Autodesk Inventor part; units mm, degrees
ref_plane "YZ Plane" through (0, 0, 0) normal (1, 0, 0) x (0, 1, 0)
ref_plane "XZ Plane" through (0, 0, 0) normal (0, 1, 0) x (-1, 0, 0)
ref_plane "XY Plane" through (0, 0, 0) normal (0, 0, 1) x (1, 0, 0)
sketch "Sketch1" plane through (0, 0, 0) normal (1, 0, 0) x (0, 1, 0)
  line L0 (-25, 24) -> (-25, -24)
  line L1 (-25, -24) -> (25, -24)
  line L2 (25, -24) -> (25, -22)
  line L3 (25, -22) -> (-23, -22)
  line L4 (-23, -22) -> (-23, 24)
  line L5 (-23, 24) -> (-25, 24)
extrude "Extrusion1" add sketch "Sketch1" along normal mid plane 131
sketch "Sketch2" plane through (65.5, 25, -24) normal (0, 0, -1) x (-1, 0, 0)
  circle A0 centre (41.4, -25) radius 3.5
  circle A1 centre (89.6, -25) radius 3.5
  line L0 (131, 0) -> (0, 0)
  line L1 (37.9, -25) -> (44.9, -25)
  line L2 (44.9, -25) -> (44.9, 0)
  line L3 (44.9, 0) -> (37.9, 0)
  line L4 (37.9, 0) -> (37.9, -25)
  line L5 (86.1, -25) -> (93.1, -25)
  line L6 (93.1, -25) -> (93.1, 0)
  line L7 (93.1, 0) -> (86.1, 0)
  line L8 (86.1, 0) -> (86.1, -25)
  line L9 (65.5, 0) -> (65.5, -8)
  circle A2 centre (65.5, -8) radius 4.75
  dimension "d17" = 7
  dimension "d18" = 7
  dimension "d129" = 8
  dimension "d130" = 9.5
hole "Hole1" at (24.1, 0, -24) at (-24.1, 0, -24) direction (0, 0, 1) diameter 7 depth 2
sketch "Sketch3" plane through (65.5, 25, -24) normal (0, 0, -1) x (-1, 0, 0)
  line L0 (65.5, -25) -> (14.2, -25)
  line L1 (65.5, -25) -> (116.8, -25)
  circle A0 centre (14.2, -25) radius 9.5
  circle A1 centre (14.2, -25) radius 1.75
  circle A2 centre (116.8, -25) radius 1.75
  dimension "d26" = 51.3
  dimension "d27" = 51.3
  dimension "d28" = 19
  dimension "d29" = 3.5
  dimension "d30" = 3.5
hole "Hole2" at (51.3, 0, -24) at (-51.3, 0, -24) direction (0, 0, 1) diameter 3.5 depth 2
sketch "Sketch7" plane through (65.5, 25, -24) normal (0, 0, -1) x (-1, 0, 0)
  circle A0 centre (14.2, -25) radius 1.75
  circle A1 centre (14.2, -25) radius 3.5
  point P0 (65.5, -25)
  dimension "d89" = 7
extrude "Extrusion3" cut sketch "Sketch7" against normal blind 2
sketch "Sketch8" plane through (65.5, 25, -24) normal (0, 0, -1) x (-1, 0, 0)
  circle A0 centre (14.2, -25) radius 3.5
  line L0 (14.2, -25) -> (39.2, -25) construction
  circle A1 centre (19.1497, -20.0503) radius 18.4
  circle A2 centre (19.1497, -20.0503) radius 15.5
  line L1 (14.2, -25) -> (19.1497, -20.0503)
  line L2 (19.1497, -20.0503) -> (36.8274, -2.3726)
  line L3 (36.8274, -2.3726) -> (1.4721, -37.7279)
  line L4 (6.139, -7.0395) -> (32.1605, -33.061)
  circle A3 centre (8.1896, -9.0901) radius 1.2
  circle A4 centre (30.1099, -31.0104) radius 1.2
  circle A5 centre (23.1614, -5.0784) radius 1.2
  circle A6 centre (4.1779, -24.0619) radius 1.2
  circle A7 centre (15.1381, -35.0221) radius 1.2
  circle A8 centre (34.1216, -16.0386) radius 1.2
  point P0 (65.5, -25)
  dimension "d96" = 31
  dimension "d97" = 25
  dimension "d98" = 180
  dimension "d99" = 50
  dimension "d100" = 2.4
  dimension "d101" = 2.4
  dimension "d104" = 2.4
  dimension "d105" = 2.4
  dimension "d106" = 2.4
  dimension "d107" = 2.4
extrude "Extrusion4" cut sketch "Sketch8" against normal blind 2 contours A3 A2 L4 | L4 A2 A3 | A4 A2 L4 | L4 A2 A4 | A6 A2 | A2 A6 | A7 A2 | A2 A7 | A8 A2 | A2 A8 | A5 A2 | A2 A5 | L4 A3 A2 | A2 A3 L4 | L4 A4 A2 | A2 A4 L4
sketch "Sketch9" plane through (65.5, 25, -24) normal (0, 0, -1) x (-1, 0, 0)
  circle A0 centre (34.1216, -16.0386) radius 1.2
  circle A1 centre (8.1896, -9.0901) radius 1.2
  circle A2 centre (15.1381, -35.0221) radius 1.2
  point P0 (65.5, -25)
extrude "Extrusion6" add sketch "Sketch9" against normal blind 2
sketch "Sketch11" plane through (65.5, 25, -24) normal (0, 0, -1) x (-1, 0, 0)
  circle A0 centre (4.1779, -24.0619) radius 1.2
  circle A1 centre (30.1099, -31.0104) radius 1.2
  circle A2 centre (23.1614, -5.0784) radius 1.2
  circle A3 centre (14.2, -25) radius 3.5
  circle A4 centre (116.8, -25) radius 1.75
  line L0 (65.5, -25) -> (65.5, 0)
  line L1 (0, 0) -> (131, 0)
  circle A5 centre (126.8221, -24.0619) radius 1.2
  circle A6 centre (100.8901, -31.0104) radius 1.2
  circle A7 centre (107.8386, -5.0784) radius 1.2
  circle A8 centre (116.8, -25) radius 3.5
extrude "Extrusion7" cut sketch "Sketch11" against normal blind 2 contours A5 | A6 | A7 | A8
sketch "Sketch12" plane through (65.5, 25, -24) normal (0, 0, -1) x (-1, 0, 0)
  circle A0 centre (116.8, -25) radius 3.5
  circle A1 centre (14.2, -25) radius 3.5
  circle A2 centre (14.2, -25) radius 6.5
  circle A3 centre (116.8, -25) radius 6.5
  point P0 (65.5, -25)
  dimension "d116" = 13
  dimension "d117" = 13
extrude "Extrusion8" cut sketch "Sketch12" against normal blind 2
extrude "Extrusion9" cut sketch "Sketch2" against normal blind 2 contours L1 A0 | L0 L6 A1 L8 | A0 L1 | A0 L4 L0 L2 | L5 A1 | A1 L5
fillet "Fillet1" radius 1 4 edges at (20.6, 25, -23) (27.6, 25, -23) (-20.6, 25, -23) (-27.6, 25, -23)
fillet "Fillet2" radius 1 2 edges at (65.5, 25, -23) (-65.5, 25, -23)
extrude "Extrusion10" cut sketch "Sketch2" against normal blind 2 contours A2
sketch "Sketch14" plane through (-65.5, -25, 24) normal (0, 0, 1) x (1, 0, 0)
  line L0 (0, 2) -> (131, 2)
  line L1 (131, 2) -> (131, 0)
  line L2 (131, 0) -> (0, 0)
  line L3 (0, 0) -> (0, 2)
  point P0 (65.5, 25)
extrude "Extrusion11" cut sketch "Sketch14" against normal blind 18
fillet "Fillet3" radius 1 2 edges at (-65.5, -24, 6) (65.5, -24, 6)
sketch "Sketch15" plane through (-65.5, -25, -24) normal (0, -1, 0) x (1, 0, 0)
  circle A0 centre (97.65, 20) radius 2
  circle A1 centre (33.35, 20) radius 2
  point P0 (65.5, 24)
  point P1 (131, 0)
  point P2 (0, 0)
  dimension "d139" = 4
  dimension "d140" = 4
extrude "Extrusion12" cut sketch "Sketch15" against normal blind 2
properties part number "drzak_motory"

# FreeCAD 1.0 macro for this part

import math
import FreeCAD as App
import Part
import Sketcher
from FreeCAD import Vector


def edges_at(feature, points):
    """Names of the edges that pass closest to the given points."""
    edges = feature.Shape.Edges
    near = lambda p: min(range(len(edges)), key=lambda i: edges[i].distToShape(Part.Vertex(*p))[0])
    return sorted({f"Edge{near(p) + 1}" for p in points})

doc = App.newDocument("Part")
params = doc.addObject("Spreadsheet::Sheet", "Params")
for row, (alias, value) in enumerate([
    ("sketch1_width", "2 mm"),
    ("sketch1_width2", "50 mm"),
    ("pad1_length", "131 mm"),
    ("sketch2_diameter", "7 mm"),
    ("hole_diameter", "7 mm"),
    ("hole_depth", "2 mm"),
    ("sketch3_diameter", "3.5 mm"),
    ("hole2_diameter", "3.5 mm"),
    ("hole2_depth", "2 mm"),
    ("sketch4_diameter", "7 mm"),
    ("sketch4_diameter2", "3.5 mm"),
    ("pocket1_length", "2 mm"),
    ("sketch5_diameter", "2.4 mm"),
    ("pocket2_length", "2 mm"),
    ("sketch6_diameter", "2.4 mm"),
    ("pad2_length", "2 mm"),
    ("sketch7_diameter", "7 mm"),
    ("sketch7_diameter2", "2.4 mm"),
    ("sketch7_diameter3", "3.5 mm"),
    ("pocket3_length", "2 mm"),
    ("sketch8_diameter", "13 mm"),
    ("sketch8_diameter2", "7 mm"),
    ("pocket4_length", "2 mm"),
    ("sketch9_radius", "3.5 mm"),
    ("sketch9_height", "25 mm"),
    ("pocket5_length", "2 mm"),
    ("fillet_radius", "1 mm"),
    ("fillet2_radius", "1 mm"),
    ("sketch10_diameter", "9.5 mm"),
    ("pocket6_length", "2 mm"),
    ("sketch11_width", "131 mm"),
    ("sketch11_height", "2 mm"),
    ("pocket7_length", "18 mm"),
    ("fillet3_radius", "1 mm"),
    ("sketch12_diameter", "4 mm"),
    ("pocket8_length", "2 mm"),
], start=1):
    params.set(f"A{row}", alias)
    params.set(f"B{row}", "=" + value)
    params.setAlias(f"B{row}", alias)

body = doc.addObject("PartDesign::Body", "Body")

# Sketch on YZ plane
sketch1 = body.newObject("Sketcher::SketchObject", "Sketch")
sketch1.AttachmentSupport = (doc.getObject("YZ_Plane"), [""])
sketch1.MapMode = "FlatFace"
sketch1.addGeometry(Part.LineSegment(Vector(-23, 24, 0), Vector(-25, 24, 0)), False)
sketch1.addGeometry(Part.LineSegment(Vector(-25, 24, 0), Vector(-25, -24, 0)), False)
sketch1.addGeometry(Part.LineSegment(Vector(-25, -24, 0), Vector(25, -24, 0)), False)
sketch1.addGeometry(Part.LineSegment(Vector(25, -24, 0), Vector(25, -22, 0)), False)
sketch1.addGeometry(Part.LineSegment(Vector(25, -22, 0), Vector(-23, -22, 0)), False)
sketch1.addGeometry(Part.LineSegment(Vector(-23, -22, 0), Vector(-23, 24, 0)), False)
sketch1.addConstraint(Sketcher.Constraint("Coincident", 0, 2, 1, 1))
sketch1.addConstraint(Sketcher.Constraint("Coincident", 1, 2, 2, 1))
sketch1.addConstraint(Sketcher.Constraint("Coincident", 2, 2, 3, 1))
sketch1.addConstraint(Sketcher.Constraint("Coincident", 3, 2, 4, 1))
sketch1.addConstraint(Sketcher.Constraint("Coincident", 4, 2, 5, 1))
sketch1.addConstraint(Sketcher.Constraint("Coincident", 5, 2, 0, 1))
sketch1.addConstraint(Sketcher.Constraint("Horizontal", 0))
sketch1.addConstraint(Sketcher.Constraint("Vertical", 1))
sketch1.addConstraint(Sketcher.Constraint("Horizontal", 2))
sketch1.addConstraint(Sketcher.Constraint("Vertical", 3))
sketch1.addConstraint(Sketcher.Constraint("Horizontal", 4))
sketch1.addConstraint(Sketcher.Constraint("Vertical", 5))
sketch1.addConstraint(Sketcher.Constraint("Symmetric", 0, 2, 2, 2, -1, 1))
sketch1.addConstraint(Sketcher.Constraint("Equal", 4, 1))
sketch1.addConstraint(Sketcher.Constraint("Equal", 0, 3))
sketch1.addConstraint(Sketcher.Constraint("DistanceX", 0, 2, 0, 1, 2.0))
sketch1.addConstraint(Sketcher.Constraint("DistanceX", 2, 1, 2, 2, 50.0))
sketch1.setExpression("Constraints[15]", "Params.sketch1_width")
sketch1.setExpression("Constraints[16]", "Params.sketch1_width2")
pad1 = body.newObject("PartDesign::Pad", "Pad")
pad1.Profile = sketch1
pad1.setExpression("Length", "Params.pad1_length")
pad1.Midplane = True

# Sketch on XY plane
sketch2 = body.newObject("Sketcher::SketchObject", "Sketch001")
sketch2.AttachmentSupport = (doc.getObject("XY_Plane"), [""])
sketch2.MapMode = "FlatFace"
sketch2.AttachmentOffset = App.Placement(Vector(0, 0, -24), App.Rotation())
sketch2.addGeometry(Part.Circle(Vector(24.1, 0, 0), Vector(0, 0, 1), 3.5), False)
sketch2.addGeometry(Part.Circle(Vector(-24.1, 0, 0), Vector(0, 0, 1), 3.5), False)
sketch2.addConstraint(Sketcher.Constraint("Equal", 0, 1))
sketch2.addConstraint(Sketcher.Constraint("Symmetric", 0, 3, 1, 3, -1, 1))
sketch2.addConstraint(Sketcher.Constraint("PointOnObject", 0, 3, -1))
sketch2.addConstraint(Sketcher.Constraint("Diameter", 0, 7.0))
sketch2.addConstraint(Sketcher.Constraint("DistanceX", -1, 1, 0, 3, 24.1))
sketch2.setExpression("Constraints[3]", "Params.sketch2_diameter")
doc.recompute()
hole = body.newObject("PartDesign::Hole", "Hole")
hole.Profile = sketch2
hole.ThreadType = "None"
hole.setExpression("Diameter", "Params.hole_diameter")
hole.DepthType = "Dimension"
hole.setExpression("Depth", "Params.hole_depth")
hole.DrillPoint = "Flat"
hole.Reversed = True

# Sketch on XY plane
sketch3 = body.newObject("Sketcher::SketchObject", "Sketch002")
sketch3.AttachmentSupport = (doc.getObject("XY_Plane"), [""])
sketch3.MapMode = "FlatFace"
sketch3.AttachmentOffset = App.Placement(Vector(0, 0, -24), App.Rotation())
sketch3.addGeometry(Part.Circle(Vector(51.3, 0, 0), Vector(0, 0, 1), 1.8), False)
sketch3.addGeometry(Part.Circle(Vector(-51.3, 0, 0), Vector(0, 0, 1), 1.8), False)
sketch3.addConstraint(Sketcher.Constraint("Equal", 0, 1))
sketch3.addConstraint(Sketcher.Constraint("Symmetric", 0, 3, 1, 3, -1, 1))
sketch3.addConstraint(Sketcher.Constraint("PointOnObject", 0, 3, -1))
sketch3.addConstraint(Sketcher.Constraint("Diameter", 0, 3.5))
sketch3.addConstraint(Sketcher.Constraint("DistanceX", -1, 1, 0, 3, 51.3))
sketch3.setExpression("Constraints[3]", "Params.sketch3_diameter")
doc.recompute()
hole2 = body.newObject("PartDesign::Hole", "Hole001")
hole2.Profile = sketch3
hole2.ThreadType = "None"
hole2.setExpression("Diameter", "Params.hole2_diameter")
hole2.DepthType = "Dimension"
hole2.setExpression("Depth", "Params.hole2_depth")
hole2.DrillPoint = "Flat"
hole2.Reversed = True

# Sketch on XY plane
sketch4 = body.newObject("Sketcher::SketchObject", "Sketch003")
sketch4.AttachmentSupport = (doc.getObject("XY_Plane"), [""])
sketch4.MapMode = "FlatFace"
sketch4.AttachmentOffset = App.Placement(Vector(0, 0, -24), App.Rotation())
sketch4.addGeometry(Part.Circle(Vector(51.3, 0, 0), Vector(0, 0, 1), 3.5), False)
sketch4.addGeometry(Part.Circle(Vector(51.3, 0, 0), Vector(0, 0, 1), 1.8), False)
sketch4.addConstraint(Sketcher.Constraint("Coincident", 1, 3, 0, 3))
sketch4.addConstraint(Sketcher.Constraint("PointOnObject", 0, 3, -1))
sketch4.addConstraint(Sketcher.Constraint("Diameter", 0, 7.0))
sketch4.addConstraint(Sketcher.Constraint("Diameter", 1, 3.5))
sketch4.addConstraint(Sketcher.Constraint("DistanceX", -1, 1, 0, 3, 51.3))
sketch4.setExpression("Constraints[2]", "Params.sketch4_diameter")
sketch4.setExpression("Constraints[3]", "Params.sketch4_diameter2")
pocket1 = body.newObject("PartDesign::Pocket", "Pocket")
pocket1.Profile = sketch4
pocket1.setExpression("Length", "Params.pocket1_length")
pocket1.Reversed = True

# Sketch on XY plane
sketch5 = body.newObject("Sketcher::SketchObject", "Sketch004")
sketch5.AttachmentSupport = (doc.getObject("XY_Plane"), [""])
sketch5.MapMode = "FlatFace"
sketch5.AttachmentOffset = App.Placement(Vector(0, 0, -24), App.Rotation())
sketch5.addGeometry(Part.Circle(Vector(57.3, 15.9, 0), Vector(0, 0, 1), 1.2), False)
sketch5.addGeometry(Part.Circle(Vector(35.4, -6, 0), Vector(0, 0, 1), 1.2), False)
sketch5.addGeometry(Part.Circle(Vector(61.3, 0.9, 0), Vector(0, 0, 1), 1.2), False)
sketch5.addGeometry(Part.Circle(Vector(50.4, -10, 0), Vector(0, 0, 1), 1.2), False)
sketch5.addGeometry(Part.Circle(Vector(31.4, 9, 0), Vector(0, 0, 1), 1.2), False)
sketch5.addGeometry(Part.Circle(Vector(42.3, 19.9, 0), Vector(0, 0, 1), 1.2), False)
sketch5.addConstraint(Sketcher.Constraint("Equal", 0, 1))
sketch5.addConstraint(Sketcher.Constraint("Equal", 1, 2))
sketch5.addConstraint(Sketcher.Constraint("Equal", 2, 3))
sketch5.addConstraint(Sketcher.Constraint("Equal", 3, 4))
sketch5.addConstraint(Sketcher.Constraint("Equal", 4, 5))
sketch5.addConstraint(Sketcher.Constraint("Diameter", 0, 2.4))
sketch5.addConstraint(Sketcher.Constraint("DistanceY", -1, 1, 0, 3, 15.91))
sketch5.addConstraint(Sketcher.Constraint("DistanceX", -1, 1, 1, 3, 35.39))
sketch5.addConstraint(Sketcher.Constraint("DistanceX", -1, 1, 2, 3, 61.322))
sketch5.addConstraint(Sketcher.Constraint("DistanceY", -1, 1, 2, 3, 0.938))
sketch5.addConstraint(Sketcher.Constraint("DistanceX", -1, 1, 3, 3, 50.362))
sketch5.addConstraint(Sketcher.Constraint("DistanceY", 3, 3, -1, 1, 10.022))
sketch5.addConstraint(Sketcher.Constraint("DistanceX", 4, 3, 0, 3, 25.932))
sketch5.addConstraint(Sketcher.Constraint("DistanceY", 1, 3, 5, 3, 25.932))
sketch5.addConstraint(Sketcher.Constraint("DistanceX", -1, 1, 0, 3, 57.3104))
sketch5.addConstraint(Sketcher.Constraint("DistanceY", 1, 3, -1, 1, 6.0104))
sketch5.addConstraint(Sketcher.Constraint("DistanceY", -1, 1, 4, 3, 8.9614))
sketch5.addConstraint(Sketcher.Constraint("DistanceX", -1, 1, 5, 3, 42.3386))
sketch5.setExpression("Constraints[5]", "Params.sketch5_diameter")
pocket2 = body.newObject("PartDesign::Pocket", "Pocket001")
pocket2.Profile = sketch5
pocket2.setExpression("Length", "Params.pocket2_length")
pocket2.Reversed = True

# Sketch on XY plane
sketch6 = body.newObject("Sketcher::SketchObject", "Sketch005")
sketch6.AttachmentSupport = (doc.getObject("XY_Plane"), [""])
sketch6.MapMode = "FlatFace"
sketch6.AttachmentOffset = App.Placement(Vector(0, 0, -24), App.Rotation())
sketch6.addGeometry(Part.Circle(Vector(31.4, 9, 0), Vector(0, 0, 1), 1.2), False)
sketch6.addGeometry(Part.Circle(Vector(57.3, 15.9, 0), Vector(0, 0, 1), 1.2), False)
sketch6.addGeometry(Part.Circle(Vector(50.4, -10, 0), Vector(0, 0, 1), 1.2), False)
sketch6.addConstraint(Sketcher.Constraint("Equal", 0, 1))
sketch6.addConstraint(Sketcher.Constraint("Equal", 1, 2))
sketch6.addConstraint(Sketcher.Constraint("Diameter", 0, 2.4))
sketch6.addConstraint(Sketcher.Constraint("DistanceY", -1, 1, 1, 3, 15.91))
sketch6.addConstraint(Sketcher.Constraint("DistanceX", -1, 1, 2, 3, 50.362))
sketch6.addConstraint(Sketcher.Constraint("DistanceY", 2, 3, -1, 1, 10.022))
sketch6.addConstraint(Sketcher.Constraint("DistanceX", 0, 3, 1, 3, 25.932))
sketch6.addConstraint(Sketcher.Constraint("DistanceX", -1, 1, 0, 3, 31.3784))
sketch6.addConstraint(Sketcher.Constraint("DistanceY", -1, 1, 0, 3, 8.9614))
sketch6.setExpression("Constraints[2]", "Params.sketch6_diameter")
pad2 = body.newObject("PartDesign::Pad", "Pad001")
pad2.Profile = sketch6
pad2.setExpression("Length", "Params.pad2_length")

# Sketch on XY plane
sketch7 = body.newObject("Sketcher::SketchObject", "Sketch006")
sketch7.AttachmentSupport = (doc.getObject("XY_Plane"), [""])
sketch7.MapMode = "FlatFace"
sketch7.AttachmentOffset = App.Placement(Vector(0, 0, -24), App.Rotation())
sketch7.addGeometry(Part.Circle(Vector(-61.3, 0.9, 0), Vector(0, 0, 1), 1.2), False)
sketch7.addGeometry(Part.Circle(Vector(-35.4, -6, 0), Vector(0, 0, 1), 1.2), False)
sketch7.addGeometry(Part.Circle(Vector(-42.3, 19.9, 0), Vector(0, 0, 1), 1.2), False)
sketch7.addGeometry(Part.Circle(Vector(-51.3, 0, 0), Vector(0, 0, 1), 3.5), False)
sketch7.addGeometry(Part.Circle(Vector(-51.3, 0, 0), Vector(0, 0, 1), 1.8), False)
sketch7.addConstraint(Sketcher.Constraint("Coincident", 4, 3, 3, 3))
sketch7.addConstraint(Sketcher.Constraint("Equal", 0, 1))
sketch7.addConstraint(Sketcher.Constraint("Equal", 1, 2))
sketch7.addConstraint(Sketcher.Constraint("PointOnObject", 3, 3, -1))
sketch7.addConstraint(Sketcher.Constraint("Diameter", 3, 7.0))
sketch7.addConstraint(Sketcher.Constraint("Diameter", 0, 2.4))
sketch7.addConstraint(Sketcher.Constraint("Diameter", 4, 3.5))
sketch7.addConstraint(Sketcher.Constraint("DistanceX", 3, 3, -1, 1, 51.3))
sketch7.addConstraint(Sketcher.Constraint("DistanceX", 1, 3, -1, 1, 35.39))
sketch7.addConstraint(Sketcher.Constraint("DistanceX", 0, 3, -1, 1, 61.322))
sketch7.addConstraint(Sketcher.Constraint("DistanceY", -1, 1, 0, 3, 0.938))
sketch7.addConstraint(Sketcher.Constraint("DistanceY", 1, 3, 2, 3, 25.932))
sketch7.addConstraint(Sketcher.Constraint("DistanceY", 1, 3, -1, 1, 6.0104))
sketch7.addConstraint(Sketcher.Constraint("DistanceX", 2, 3, -1, 1, 42.3386))
sketch7.setExpression("Constraints[4]", "Params.sketch7_diameter")
sketch7.setExpression("Constraints[5]", "Params.sketch7_diameter2")
sketch7.setExpression("Constraints[6]", "Params.sketch7_diameter3")
pocket3 = body.newObject("PartDesign::Pocket", "Pocket002")
pocket3.Profile = sketch7
pocket3.setExpression("Length", "Params.pocket3_length")
pocket3.Reversed = True

# Sketch on XY plane
sketch8 = body.newObject("Sketcher::SketchObject", "Sketch007")
sketch8.AttachmentSupport = (doc.getObject("XY_Plane"), [""])
sketch8.MapMode = "FlatFace"
sketch8.AttachmentOffset = App.Placement(Vector(0, 0, -24), App.Rotation())
sketch8.addGeometry(Part.Circle(Vector(51.3, 0, 0), Vector(0, 0, 1), 6.5), False)
sketch8.addGeometry(Part.Circle(Vector(51.3, 0, 0), Vector(0, 0, 1), 3.5), False)
sketch8.addGeometry(Part.Circle(Vector(-51.3, 0, 0), Vector(0, 0, 1), 6.5), False)
sketch8.addGeometry(Part.Circle(Vector(-51.3, 0, 0), Vector(0, 0, 1), 3.5), False)
sketch8.addConstraint(Sketcher.Constraint("Coincident", 1, 3, 0, 3))
sketch8.addConstraint(Sketcher.Constraint("Coincident", 3, 3, 2, 3))
sketch8.addConstraint(Sketcher.Constraint("Equal", 0, 2))
sketch8.addConstraint(Sketcher.Constraint("Equal", 1, 3))
sketch8.addConstraint(Sketcher.Constraint("Symmetric", 0, 3, 2, 3, -1, 1))
sketch8.addConstraint(Sketcher.Constraint("PointOnObject", 0, 3, -1))
sketch8.addConstraint(Sketcher.Constraint("Diameter", 0, 13.0))
sketch8.addConstraint(Sketcher.Constraint("Diameter", 1, 7.0))
sketch8.addConstraint(Sketcher.Constraint("DistanceX", -1, 1, 0, 3, 51.3))
sketch8.setExpression("Constraints[6]", "Params.sketch8_diameter")
sketch8.setExpression("Constraints[7]", "Params.sketch8_diameter2")
pocket4 = body.newObject("PartDesign::Pocket", "Pocket003")
pocket4.Profile = sketch8
pocket4.setExpression("Length", "Params.pocket4_length")
pocket4.Reversed = True

# Sketch on XY plane
sketch9 = body.newObject("Sketcher::SketchObject", "Sketch008")
sketch9.AttachmentSupport = (doc.getObject("XY_Plane"), [""])
sketch9.MapMode = "FlatFace"
sketch9.AttachmentOffset = App.Placement(Vector(0, 0, -24), App.Rotation())
sketch9.addGeometry(Part.ArcOfCircle(Part.Circle(Vector(24.1, 0, 0), Vector(0, 0, 1), 3.5), math.radians(180), math.radians(360)), False)
sketch9.addGeometry(Part.LineSegment(Vector(20.6, 0, 0), Vector(20.6, 25, 0)), False)
sketch9.addGeometry(Part.LineSegment(Vector(20.6, 25, 0), Vector(27.6, 25, 0)), False)
sketch9.addGeometry(Part.LineSegment(Vector(27.6, 25, 0), Vector(27.6, 0, 0)), False)
sketch9.addGeometry(Part.LineSegment(Vector(-27.6, 25, 0), Vector(-20.6, 25, 0)), False)
sketch9.addGeometry(Part.LineSegment(Vector(-20.6, 25, 0), Vector(-20.6, 0, 0)), False)
sketch9.addGeometry(Part.ArcOfCircle(Part.Circle(Vector(-24.1, 0, 0), Vector(0, 0, 1), 3.5), math.radians(180), math.radians(360)), False)
sketch9.addGeometry(Part.LineSegment(Vector(-27.6, 0, 0), Vector(-27.6, 25, 0)), False)
sketch9.addConstraint(Sketcher.Constraint("Tangent", 0, 1, 1, 1))
sketch9.addConstraint(Sketcher.Constraint("Coincident", 1, 2, 2, 1))
sketch9.addConstraint(Sketcher.Constraint("Coincident", 2, 2, 3, 1))
sketch9.addConstraint(Sketcher.Constraint("Tangent", 3, 2, 0, 2))
sketch9.addConstraint(Sketcher.Constraint("Coincident", 4, 2, 5, 1))
sketch9.addConstraint(Sketcher.Constraint("Tangent", 5, 2, 6, 2))
sketch9.addConstraint(Sketcher.Constraint("Tangent", 6, 1, 7, 1))
sketch9.addConstraint(Sketcher.Constraint("Coincident", 7, 2, 4, 1))
sketch9.addConstraint(Sketcher.Constraint("Vertical", 1))
sketch9.addConstraint(Sketcher.Constraint("Horizontal", 2))
sketch9.addConstraint(Sketcher.Constraint("Vertical", 3))
sketch9.addConstraint(Sketcher.Constraint("Horizontal", 4))
sketch9.addConstraint(Sketcher.Constraint("Vertical", 5))
sketch9.addConstraint(Sketcher.Constraint("Vertical", 7))
sketch9.addConstraint(Sketcher.Constraint("Equal", 0, 6))
sketch9.addConstraint(Sketcher.Constraint("Symmetric", 0, 3, 6, 3, -1, 1))
sketch9.addConstraint(Sketcher.Constraint("PointOnObject", 0, 3, -1))
sketch9.addConstraint(Sketcher.Constraint("Horizontal", 2, 2, 4, 2))
sketch9.addConstraint(Sketcher.Constraint("Radius", 0, 3.5))
sketch9.addConstraint(Sketcher.Constraint("DistanceY", 1, 1, 1, 2, 25.0))
sketch9.addConstraint(Sketcher.Constraint("DistanceX", -1, 1, 0, 3, 24.1))
sketch9.setExpression("Constraints[18]", "Params.sketch9_radius")
sketch9.setExpression("Constraints[19]", "Params.sketch9_height")
pocket5 = body.newObject("PartDesign::Pocket", "Pocket004")
pocket5.Profile = sketch9
pocket5.setExpression("Length", "Params.pocket5_length")
pocket5.Reversed = True
doc.recompute()

fillet = body.newObject("PartDesign::Fillet", "Fillet")
fillet.Base = (pocket5, edges_at(pocket5, [
    (20.6, 25, -23),
    (27.6, 25, -23),
    (-20.6, 25, -23),
    (-27.6, 25, -23),
]))
fillet.setExpression("Radius", "Params.fillet_radius")
doc.recompute()

fillet2 = body.newObject("PartDesign::Fillet", "Fillet001")
fillet2.Base = (fillet, edges_at(fillet, [(65.5, 25, -23), (-65.5, 25, -23)]))
fillet2.setExpression("Radius", "Params.fillet2_radius")

# Sketch on XY plane
sketch10 = body.newObject("Sketcher::SketchObject", "Sketch009")
sketch10.AttachmentSupport = (doc.getObject("XY_Plane"), [""])
sketch10.MapMode = "FlatFace"
sketch10.AttachmentOffset = App.Placement(Vector(0, 0, -24), App.Rotation())
sketch10.addGeometry(Part.Circle(Vector(0, 17, 0), Vector(0, 0, 1), 4.8), False)
sketch10.addConstraint(Sketcher.Constraint("PointOnObject", 0, 3, -2))
sketch10.addConstraint(Sketcher.Constraint("Diameter", 0, 9.5))
sketch10.addConstraint(Sketcher.Constraint("DistanceY", -1, 1, 0, 3, 17.0))
sketch10.setExpression("Constraints[1]", "Params.sketch10_diameter")
pocket6 = body.newObject("PartDesign::Pocket", "Pocket005")
pocket6.Profile = sketch10
pocket6.setExpression("Length", "Params.pocket6_length")
pocket6.Reversed = True

# Sketch on XY plane
sketch11 = body.newObject("Sketcher::SketchObject", "Sketch010")
sketch11.AttachmentSupport = (doc.getObject("XY_Plane"), [""])
sketch11.MapMode = "FlatFace"
sketch11.AttachmentOffset = App.Placement(Vector(0, 0, 24), App.Rotation())
sketch11.addGeometry(Part.LineSegment(Vector(65.5, -23, 0), Vector(-65.5, -23, 0)), False)
sketch11.addGeometry(Part.LineSegment(Vector(-65.5, -23, 0), Vector(-65.5, -25, 0)), False)
sketch11.addGeometry(Part.LineSegment(Vector(-65.5, -25, 0), Vector(65.5, -25, 0)), False)
sketch11.addGeometry(Part.LineSegment(Vector(65.5, -25, 0), Vector(65.5, -23, 0)), False)
sketch11.addConstraint(Sketcher.Constraint("Coincident", 0, 2, 1, 1))
sketch11.addConstraint(Sketcher.Constraint("Coincident", 1, 2, 2, 1))
sketch11.addConstraint(Sketcher.Constraint("Coincident", 2, 2, 3, 1))
sketch11.addConstraint(Sketcher.Constraint("Coincident", 3, 2, 0, 1))
sketch11.addConstraint(Sketcher.Constraint("Horizontal", 0))
sketch11.addConstraint(Sketcher.Constraint("Vertical", 1))
sketch11.addConstraint(Sketcher.Constraint("Horizontal", 2))
sketch11.addConstraint(Sketcher.Constraint("Vertical", 3))
sketch11.addConstraint(Sketcher.Constraint("DistanceX", 0, 2, 0, 1, 131.0))
sketch11.addConstraint(Sketcher.Constraint("DistanceY", 1, 2, 1, 1, 2.0))
sketch11.addConstraint(Sketcher.Constraint("DistanceY", 0, 2, -1, 1, 23.0))
sketch11.addConstraint(Sketcher.Constraint("DistanceX", 0, 2, -1, 1, 65.5))
sketch11.setExpression("Constraints[8]", "Params.sketch11_width")
sketch11.setExpression("Constraints[9]", "Params.sketch11_height")
pocket7 = body.newObject("PartDesign::Pocket", "Pocket006")
pocket7.Profile = sketch11
pocket7.setExpression("Length", "Params.pocket7_length")
doc.recompute()

fillet3 = body.newObject("PartDesign::Fillet", "Fillet002")
fillet3.Base = (pocket7, edges_at(pocket7, [(-65.5, -24, 6), (65.5, -24, 6)]))
fillet3.setExpression("Radius", "Params.fillet3_radius")

# Sketch on XZ plane
sketch12 = body.newObject("Sketcher::SketchObject", "Sketch011")
sketch12.AttachmentSupport = (doc.getObject("XZ_Plane"), [""])
sketch12.MapMode = "FlatFace"
sketch12.AttachmentOffset = App.Placement(Vector(0, 0, 25), App.Rotation())
sketch12.addGeometry(Part.Circle(Vector(32.1, -4, 0), Vector(0, 0, 1), 2), False)
sketch12.addGeometry(Part.Circle(Vector(-32.1, -4, 0), Vector(0, 0, 1), 2), False)
sketch12.addConstraint(Sketcher.Constraint("Equal", 0, 1))
sketch12.addConstraint(Sketcher.Constraint("Symmetric", 0, 3, 1, 3, -2))
sketch12.addConstraint(Sketcher.Constraint("Diameter", 0, 4.0))
sketch12.addConstraint(Sketcher.Constraint("DistanceY", 0, 3, -1, 1, 4.0))
sketch12.addConstraint(Sketcher.Constraint("DistanceX", 1, 3, 0, 3, 64.3))
sketch12.setExpression("Constraints[2]", "Params.sketch12_diameter")
pocket8 = body.newObject("PartDesign::Pocket", "Pocket007")
pocket8.Profile = sketch12
pocket8.setExpression("Length", "Params.pocket8_length")

doc.recompute()
